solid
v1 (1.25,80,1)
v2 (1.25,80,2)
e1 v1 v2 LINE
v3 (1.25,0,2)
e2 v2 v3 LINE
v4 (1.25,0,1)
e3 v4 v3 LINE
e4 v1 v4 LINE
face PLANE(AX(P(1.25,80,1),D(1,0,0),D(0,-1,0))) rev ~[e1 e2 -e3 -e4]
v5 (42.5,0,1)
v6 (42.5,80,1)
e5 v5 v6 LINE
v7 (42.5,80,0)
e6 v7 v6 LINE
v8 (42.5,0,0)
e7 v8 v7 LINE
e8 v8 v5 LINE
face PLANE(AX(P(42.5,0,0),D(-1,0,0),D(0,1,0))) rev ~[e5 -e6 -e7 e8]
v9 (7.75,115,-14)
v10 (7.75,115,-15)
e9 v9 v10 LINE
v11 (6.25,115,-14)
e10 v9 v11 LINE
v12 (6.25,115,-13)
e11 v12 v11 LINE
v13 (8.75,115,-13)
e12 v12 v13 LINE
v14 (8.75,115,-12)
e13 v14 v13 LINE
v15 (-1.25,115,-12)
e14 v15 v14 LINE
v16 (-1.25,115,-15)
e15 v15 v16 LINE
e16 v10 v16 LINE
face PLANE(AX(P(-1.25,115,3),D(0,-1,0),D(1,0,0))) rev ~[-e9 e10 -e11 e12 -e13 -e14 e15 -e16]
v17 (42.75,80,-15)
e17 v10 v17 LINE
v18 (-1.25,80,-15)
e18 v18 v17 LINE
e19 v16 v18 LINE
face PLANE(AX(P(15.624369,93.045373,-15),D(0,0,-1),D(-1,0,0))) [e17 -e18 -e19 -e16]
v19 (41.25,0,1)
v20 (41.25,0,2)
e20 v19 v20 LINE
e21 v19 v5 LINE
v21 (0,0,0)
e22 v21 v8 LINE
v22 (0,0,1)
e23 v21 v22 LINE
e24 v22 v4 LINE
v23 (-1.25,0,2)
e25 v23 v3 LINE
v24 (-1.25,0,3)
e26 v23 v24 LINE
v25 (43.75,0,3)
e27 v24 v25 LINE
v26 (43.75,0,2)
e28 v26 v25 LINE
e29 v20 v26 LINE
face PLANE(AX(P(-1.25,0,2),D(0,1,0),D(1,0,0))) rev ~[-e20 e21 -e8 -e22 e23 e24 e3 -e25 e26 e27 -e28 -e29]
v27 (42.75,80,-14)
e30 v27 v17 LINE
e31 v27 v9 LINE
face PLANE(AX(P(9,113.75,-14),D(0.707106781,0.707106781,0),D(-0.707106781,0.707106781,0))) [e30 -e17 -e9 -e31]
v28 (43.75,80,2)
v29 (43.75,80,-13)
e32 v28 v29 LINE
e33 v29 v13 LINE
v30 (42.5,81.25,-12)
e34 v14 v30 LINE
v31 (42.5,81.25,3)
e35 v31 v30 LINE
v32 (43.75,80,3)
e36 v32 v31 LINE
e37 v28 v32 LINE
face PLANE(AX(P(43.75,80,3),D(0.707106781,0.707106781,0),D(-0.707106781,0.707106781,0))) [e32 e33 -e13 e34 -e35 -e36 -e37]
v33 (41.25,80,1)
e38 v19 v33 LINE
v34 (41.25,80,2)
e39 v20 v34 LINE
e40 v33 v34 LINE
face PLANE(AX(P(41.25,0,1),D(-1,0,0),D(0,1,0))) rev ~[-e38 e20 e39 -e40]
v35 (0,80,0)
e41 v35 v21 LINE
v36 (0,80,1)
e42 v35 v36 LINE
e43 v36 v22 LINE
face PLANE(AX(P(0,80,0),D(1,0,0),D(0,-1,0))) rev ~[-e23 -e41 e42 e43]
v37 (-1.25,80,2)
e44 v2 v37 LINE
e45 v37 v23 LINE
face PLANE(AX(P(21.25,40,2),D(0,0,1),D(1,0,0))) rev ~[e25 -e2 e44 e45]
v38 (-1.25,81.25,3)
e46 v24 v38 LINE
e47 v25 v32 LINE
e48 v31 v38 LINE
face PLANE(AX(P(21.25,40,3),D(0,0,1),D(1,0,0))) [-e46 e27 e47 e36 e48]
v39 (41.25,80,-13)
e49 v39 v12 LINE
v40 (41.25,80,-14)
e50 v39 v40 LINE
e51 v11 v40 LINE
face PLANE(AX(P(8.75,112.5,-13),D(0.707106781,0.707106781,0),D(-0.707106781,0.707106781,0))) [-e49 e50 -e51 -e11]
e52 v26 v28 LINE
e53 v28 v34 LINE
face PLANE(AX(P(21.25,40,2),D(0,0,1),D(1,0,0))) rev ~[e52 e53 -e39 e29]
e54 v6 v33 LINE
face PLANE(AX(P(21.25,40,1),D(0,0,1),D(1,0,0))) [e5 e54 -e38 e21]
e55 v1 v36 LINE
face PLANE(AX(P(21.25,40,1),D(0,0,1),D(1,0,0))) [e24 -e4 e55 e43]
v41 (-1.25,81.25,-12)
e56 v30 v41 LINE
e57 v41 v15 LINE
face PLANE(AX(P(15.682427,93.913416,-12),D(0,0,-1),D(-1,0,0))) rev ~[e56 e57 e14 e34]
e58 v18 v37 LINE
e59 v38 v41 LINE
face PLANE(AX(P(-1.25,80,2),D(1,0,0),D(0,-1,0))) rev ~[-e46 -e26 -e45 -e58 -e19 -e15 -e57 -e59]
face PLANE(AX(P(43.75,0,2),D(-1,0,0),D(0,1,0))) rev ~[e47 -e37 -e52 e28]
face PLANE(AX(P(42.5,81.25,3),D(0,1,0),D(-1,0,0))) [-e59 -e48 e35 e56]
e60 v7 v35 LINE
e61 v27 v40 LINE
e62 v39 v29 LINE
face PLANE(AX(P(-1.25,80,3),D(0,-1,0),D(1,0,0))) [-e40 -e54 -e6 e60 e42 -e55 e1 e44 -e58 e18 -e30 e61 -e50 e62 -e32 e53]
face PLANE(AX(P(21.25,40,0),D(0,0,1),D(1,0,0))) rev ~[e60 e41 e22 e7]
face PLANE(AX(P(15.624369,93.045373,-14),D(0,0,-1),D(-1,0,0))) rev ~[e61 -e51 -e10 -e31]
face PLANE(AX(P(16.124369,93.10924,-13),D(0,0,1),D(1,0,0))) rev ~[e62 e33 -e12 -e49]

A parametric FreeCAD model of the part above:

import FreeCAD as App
import Part
import Sketcher
Q = App.Units.Quantity

doc = App.newDocument("Part")
body = doc.addObject("PartDesign::Body", "Body")

sketch1 = doc.addObject("Sketcher::SketchObject", "Sketch")
body.addObject(sketch1)
sketch1.AttachmentSupport = (doc.XY_Plane, [""])
sketch1.MapMode = "FlatFace"
sketch1.addGeometry([
    Part.LineSegment(App.Vector(0, 80, 0), App.Vector(0, 0, 0)),
    Part.LineSegment(App.Vector(0, 0, 0), App.Vector(42, 0, 0)),
    Part.LineSegment(App.Vector(42, 0, 0), App.Vector(42, 80, 0)),
    Part.LineSegment(App.Vector(42, 80, 0), App.Vector(0, 80, 0)),
], False)
sketch1.addConstraint([
    Sketcher.Constraint("Coincident", 0, 2, 1, 1),
    Sketcher.Constraint("Coincident", 1, 2, 2, 1),
    Sketcher.Constraint("Coincident", 2, 2, 3, 1),
    Sketcher.Constraint("Coincident", 3, 2, 0, 1),
    Sketcher.Constraint("Vertical", 0),
    Sketcher.Constraint("Horizontal", 1),
    Sketcher.Constraint("Vertical", 2),
    Sketcher.Constraint("Horizontal", 3),
    Sketcher.Constraint("Coincident", 0, 2, -1, 1),
    Sketcher.Constraint("DistanceY", 0, 2, 0, 1, 80.0),
    Sketcher.Constraint("DistanceX", 1, 1, 1, 2, 42.5),
])
pad1 = doc.addObject("PartDesign::Pad", "Pad")
body.addObject(pad1)
pad1.Profile = sketch1
pad1.Length = 1

sketch2 = doc.addObject("Sketcher::SketchObject", "Sketch001")
body.addObject(sketch2)
sketch2.AttachmentSupport = (doc.XY_Plane, [""])
sketch2.MapMode = "FlatFace"
sketch2.AttachmentOffset = App.Placement(App.Vector(0, 0, 1), App.Rotation())
sketch2.addGeometry([
    Part.LineSegment(App.Vector(41, 80, 0), App.Vector(1, 80, 0)),
    Part.LineSegment(App.Vector(1, 80, 0), App.Vector(1, 0, 0)),
    Part.LineSegment(App.Vector(1, 0, 0), App.Vector(41, 0, 0)),
    Part.LineSegment(App.Vector(41, 0, 0), App.Vector(41, 80, 0)),
], False)
sketch2.addConstraint([
    Sketcher.Constraint("Coincident", 0, 2, 1, 1),
    Sketcher.Constraint("Coincident", 1, 2, 2, 1),
    Sketcher.Constraint("Coincident", 2, 2, 3, 1),
    Sketcher.Constraint("Coincident", 3, 2, 0, 1),
    Sketcher.Constraint("Horizontal", 0),
    Sketcher.Constraint("Vertical", 1),
    Sketcher.Constraint("Horizontal", 2),
    Sketcher.Constraint("Vertical", 3),
    Sketcher.Constraint("PointOnObject", 1, 2, -1),
    Sketcher.Constraint("DistanceX", 0, 2, 0, 1, 40.0),
    Sketcher.Constraint("DistanceY", 1, 2, 1, 1, 80.0),
    Sketcher.Constraint("DistanceX", -1, 1, 0, 2, 1.25),
])
pad2 = doc.addObject("PartDesign::Pad", "Pad001")
body.addObject(pad2)
pad2.Profile = sketch2
pad2.Length = 1

sketch3 = doc.addObject("Sketcher::SketchObject", "Sketch002")
body.addObject(sketch3)
sketch3.AttachmentSupport = (doc.XY_Plane, [""])
sketch3.MapMode = "FlatFace"
sketch3.AttachmentOffset = App.Placement(App.Vector(0, 0, 2), App.Rotation())
sketch3.addGeometry([
    Part.LineSegment(App.Vector(-1, 80, 0), App.Vector(-1, 0, 0)),
    Part.LineSegment(App.Vector(-1, 0, 0), App.Vector(44, 0, 0)),
    Part.LineSegment(App.Vector(44, 0, 0), App.Vector(44, 80, 0)),
    Part.LineSegment(App.Vector(44, 80, 0), App.Vector(-1, 80, 0)),
], False)
sketch3.addConstraint([
    Sketcher.Constraint("Coincident", 0, 2, 1, 1),
    Sketcher.Constraint("Coincident", 1, 2, 2, 1),
    Sketcher.Constraint("Coincident", 2, 2, 3, 1),
    Sketcher.Constraint("Coincident", 3, 2, 0, 1),
    Sketcher.Constraint("Vertical", 0),
    Sketcher.Constraint("Horizontal", 1),
    Sketcher.Constraint("Vertical", 2),
    Sketcher.Constraint("Horizontal", 3),
    Sketcher.Constraint("PointOnObject", 0, 2, -1),
    Sketcher.Constraint("DistanceX", 1, 1, 1, 2, 45.0),
    Sketcher.Constraint("DistanceY", 0, 2, 0, 1, 80.0),
    Sketcher.Constraint("DistanceX", 0, 2, -1, 1, 1.25),
])
pad3 = doc.addObject("PartDesign::Pad", "Pad002")
body.addObject(pad3)
pad3.Profile = sketch3
pad3.Length = 1

sketch4 = doc.addObject("Sketcher::SketchObject", "Sketch003")
body.addObject(sketch4)
sketch4.AttachmentSupport = (doc.XY_Plane, [""])
sketch4.MapMode = "FlatFace"
sketch4.AttachmentOffset = App.Placement(App.Vector(0, 0, 3), App.Rotation())
sketch4.addGeometry([
    Part.LineSegment(App.Vector(9, 115, 0), App.Vector(-1, 115, 0)),
    Part.LineSegment(App.Vector(-1, 115, 0), App.Vector(-1, 80, 0)),
    Part.LineSegment(App.Vector(-1, 80, 0), App.Vector(44, 80, 0)),
    Part.LineSegment(App.Vector(44, 80, 0), App.Vector(9, 115, 0)),
], False)
sketch4.addConstraint([
    Sketcher.Constraint("Coincident", 0, 2, 1, 1),
    Sketcher.Constraint("Coincident", 1, 2, 2, 1),
    Sketcher.Constraint("Coincident", 2, 2, 3, 1),
    Sketcher.Constraint("Coincident", 3, 2, 0, 1),
    Sketcher.Constraint("Horizontal", 0),
    Sketcher.Constraint("Vertical", 1),
    Sketcher.Constraint("Horizontal", 2),
    Sketcher.Constraint("DistanceX", 0, 2, 0, 1, 10.0),
    Sketcher.Constraint("DistanceX", 2, 1, 2, 2, 45.0),
    Sketcher.Constraint("DistanceY", 1, 2, 1, 1, 35.0),
    Sketcher.Constraint("DistanceY", -1, 1, 0, 2, 115.0),
    Sketcher.Constraint("DistanceX", 0, 2, -1, 1, 1.25),
])
pad4 = doc.addObject("PartDesign::Pad", "Pad003")
body.addObject(pad4)
pad4.Profile = sketch4
pad4.Length = 16
pad4.Reversed = True

sketch5 = doc.addObject("Sketcher::SketchObject", "Sketch004")
body.addObject(sketch5)
sketch5.AttachmentSupport = (doc.XY_Plane, [""])
sketch5.MapMode = "FlatFace"
sketch5.AttachmentOffset = App.Placement(App.Vector(0, 0, 3), App.Rotation())
sketch5.addGeometry([
    Part.LineSegment(App.Vector(-1, 81, 0), App.Vector(42, 81, 0)),
    Part.LineSegment(App.Vector(42, 81, 0), App.Vector(9, 115, 0)),
    Part.LineSegment(App.Vector(9, 115, 0), App.Vector(-1, 115, 0)),
    Part.LineSegment(App.Vector(-1, 115, 0), App.Vector(-1, 81, 0)),
], False)
sketch5.addConstraint([
    Sketcher.Constraint("Coincident", 0, 2, 1, 1),
    Sketcher.Constraint("Coincident", 1, 2, 2, 1),
    Sketcher.Constraint("Coincident", 2, 2, 3, 1),
    Sketcher.Constraint("Coincident", 3, 2, 0, 1),
    Sketcher.Constraint("Horizontal", 0),
    Sketcher.Constraint("Horizontal", 2),
    Sketcher.Constraint("Vertical", 3),
    Sketcher.Constraint("DistanceX", 2, 2, 2, 1, 10.0),
    Sketcher.Constraint("Angle", 1, Q("135 deg")),
    Sketcher.Constraint("DistanceY", -1, 1, 1, 2, 115.0),
    Sketcher.Constraint("DistanceX", 0, 1, 0, 2, 43.75),
    Sketcher.Constraint("DistanceX", -1, 1, 0, 2, 42.5),
])
pocket1 = doc.addObject("PartDesign::Pocket", "Pocket")
body.addObject(pocket1)
pocket1.Profile = sketch5
pocket1.Length = 15

sketch6 = doc.addObject("Sketcher::SketchObject", "Sketch005")
body.addObject(sketch6)
sketch6.AttachmentSupport = (doc.XY_Plane, [""])
sketch6.MapMode = "FlatFace"
sketch6.AttachmentOffset = App.Placement(App.Vector(0, 0, -13), App.Rotation())
sketch6.addGeometry([
    Part.LineSegment(App.Vector(6, 115, 0), App.Vector(41, 80, 0)),
    Part.LineSegment(App.Vector(41, 80, 0), App.Vector(-1, 80, 0)),
    Part.LineSegment(App.Vector(-1, 80, 0), App.Vector(-1, 115, 0)),
    Part.LineSegment(App.Vector(-1, 115, 0), App.Vector(6, 115, 0)),
], False)
sketch6.addConstraint([
    Sketcher.Constraint("Coincident", 0, 2, 1, 1),
    Sketcher.Constraint("Coincident", 1, 2, 2, 1),
    Sketcher.Constraint("Coincident", 2, 2, 3, 1),
    Sketcher.Constraint("Coincident", 3, 2, 0, 1),
    Sketcher.Constraint("Horizontal", 1),
    Sketcher.Constraint("Vertical", 2),
    Sketcher.Constraint("Horizontal", 3),
    Sketcher.Constraint("DistanceY", 2, 1, 2, 2, 35.0),
    Sketcher.Constraint("Angle", 0, Q("-45 deg")),
    Sketcher.Constraint("DistanceX", 1, 2, 1, 1, 42.5),
    Sketcher.Constraint("DistanceY", -1, 1, 0, 2, 80.0),
    Sketcher.Constraint("DistanceX", -1, 1, 0, 2, 41.25),
])
pad5 = doc.addObject("PartDesign::Pad", "Pad004")
body.addObject(pad5)
pad5.Profile = sketch6
pad5.Length = 1
pad5.Reversed = True

sketch7 = doc.addObject("Sketcher::SketchObject", "Sketch006")
body.addObject(sketch7)
sketch7.AttachmentSupport = (doc.XY_Plane, [""])
sketch7.MapMode = "FlatFace"
sketch7.AttachmentOffset = App.Placement(App.Vector(0, 0, -14), App.Rotation())
sketch7.addGeometry([
    Part.LineSegment(App.Vector(-1, 80, 0), App.Vector(-1, 115, 0)),
    Part.LineSegment(App.Vector(-1, 115, 0), App.Vector(8, 115, 0)),
    Part.LineSegment(App.Vector(8, 115, 0), App.Vector(43, 80, 0)),
    Part.LineSegment(App.Vector(43, 80, 0), App.Vector(-1, 80, 0)),
], False)
sketch7.addConstraint([
    Sketcher.Constraint("Coincident", 0, 2, 1, 1),
    Sketcher.Constraint("Coincident", 1, 2, 2, 1),
    Sketcher.Constraint("Coincident", 2, 2, 3, 1),
    Sketcher.Constraint("Coincident", 3, 2, 0, 1),
    Sketcher.Constraint("Vertical", 0),
    Sketcher.Constraint("Horizontal", 1),
    Sketcher.Constraint("Horizontal", 3),
    Sketcher.Constraint("DistanceX", 1, 1, 1, 2, 9.0),
    Sketcher.Constraint("DistanceX", 3, 2, 3, 1, 44.0),
    Sketcher.Constraint("DistanceY", 0, 1, 0, 2, 35.0),
    Sketcher.Constraint("DistanceY", -1, 1, 0, 2, 115.0),
    Sketcher.Constraint("DistanceX", 0, 2, -1, 1, 1.25),
])
pad6 = doc.addObject("PartDesign::Pad", "Pad005")
body.addObject(pad6)
pad6.Profile = sketch7
pad6.Length = 1
pad6.Reversed = True

doc.recompute()
